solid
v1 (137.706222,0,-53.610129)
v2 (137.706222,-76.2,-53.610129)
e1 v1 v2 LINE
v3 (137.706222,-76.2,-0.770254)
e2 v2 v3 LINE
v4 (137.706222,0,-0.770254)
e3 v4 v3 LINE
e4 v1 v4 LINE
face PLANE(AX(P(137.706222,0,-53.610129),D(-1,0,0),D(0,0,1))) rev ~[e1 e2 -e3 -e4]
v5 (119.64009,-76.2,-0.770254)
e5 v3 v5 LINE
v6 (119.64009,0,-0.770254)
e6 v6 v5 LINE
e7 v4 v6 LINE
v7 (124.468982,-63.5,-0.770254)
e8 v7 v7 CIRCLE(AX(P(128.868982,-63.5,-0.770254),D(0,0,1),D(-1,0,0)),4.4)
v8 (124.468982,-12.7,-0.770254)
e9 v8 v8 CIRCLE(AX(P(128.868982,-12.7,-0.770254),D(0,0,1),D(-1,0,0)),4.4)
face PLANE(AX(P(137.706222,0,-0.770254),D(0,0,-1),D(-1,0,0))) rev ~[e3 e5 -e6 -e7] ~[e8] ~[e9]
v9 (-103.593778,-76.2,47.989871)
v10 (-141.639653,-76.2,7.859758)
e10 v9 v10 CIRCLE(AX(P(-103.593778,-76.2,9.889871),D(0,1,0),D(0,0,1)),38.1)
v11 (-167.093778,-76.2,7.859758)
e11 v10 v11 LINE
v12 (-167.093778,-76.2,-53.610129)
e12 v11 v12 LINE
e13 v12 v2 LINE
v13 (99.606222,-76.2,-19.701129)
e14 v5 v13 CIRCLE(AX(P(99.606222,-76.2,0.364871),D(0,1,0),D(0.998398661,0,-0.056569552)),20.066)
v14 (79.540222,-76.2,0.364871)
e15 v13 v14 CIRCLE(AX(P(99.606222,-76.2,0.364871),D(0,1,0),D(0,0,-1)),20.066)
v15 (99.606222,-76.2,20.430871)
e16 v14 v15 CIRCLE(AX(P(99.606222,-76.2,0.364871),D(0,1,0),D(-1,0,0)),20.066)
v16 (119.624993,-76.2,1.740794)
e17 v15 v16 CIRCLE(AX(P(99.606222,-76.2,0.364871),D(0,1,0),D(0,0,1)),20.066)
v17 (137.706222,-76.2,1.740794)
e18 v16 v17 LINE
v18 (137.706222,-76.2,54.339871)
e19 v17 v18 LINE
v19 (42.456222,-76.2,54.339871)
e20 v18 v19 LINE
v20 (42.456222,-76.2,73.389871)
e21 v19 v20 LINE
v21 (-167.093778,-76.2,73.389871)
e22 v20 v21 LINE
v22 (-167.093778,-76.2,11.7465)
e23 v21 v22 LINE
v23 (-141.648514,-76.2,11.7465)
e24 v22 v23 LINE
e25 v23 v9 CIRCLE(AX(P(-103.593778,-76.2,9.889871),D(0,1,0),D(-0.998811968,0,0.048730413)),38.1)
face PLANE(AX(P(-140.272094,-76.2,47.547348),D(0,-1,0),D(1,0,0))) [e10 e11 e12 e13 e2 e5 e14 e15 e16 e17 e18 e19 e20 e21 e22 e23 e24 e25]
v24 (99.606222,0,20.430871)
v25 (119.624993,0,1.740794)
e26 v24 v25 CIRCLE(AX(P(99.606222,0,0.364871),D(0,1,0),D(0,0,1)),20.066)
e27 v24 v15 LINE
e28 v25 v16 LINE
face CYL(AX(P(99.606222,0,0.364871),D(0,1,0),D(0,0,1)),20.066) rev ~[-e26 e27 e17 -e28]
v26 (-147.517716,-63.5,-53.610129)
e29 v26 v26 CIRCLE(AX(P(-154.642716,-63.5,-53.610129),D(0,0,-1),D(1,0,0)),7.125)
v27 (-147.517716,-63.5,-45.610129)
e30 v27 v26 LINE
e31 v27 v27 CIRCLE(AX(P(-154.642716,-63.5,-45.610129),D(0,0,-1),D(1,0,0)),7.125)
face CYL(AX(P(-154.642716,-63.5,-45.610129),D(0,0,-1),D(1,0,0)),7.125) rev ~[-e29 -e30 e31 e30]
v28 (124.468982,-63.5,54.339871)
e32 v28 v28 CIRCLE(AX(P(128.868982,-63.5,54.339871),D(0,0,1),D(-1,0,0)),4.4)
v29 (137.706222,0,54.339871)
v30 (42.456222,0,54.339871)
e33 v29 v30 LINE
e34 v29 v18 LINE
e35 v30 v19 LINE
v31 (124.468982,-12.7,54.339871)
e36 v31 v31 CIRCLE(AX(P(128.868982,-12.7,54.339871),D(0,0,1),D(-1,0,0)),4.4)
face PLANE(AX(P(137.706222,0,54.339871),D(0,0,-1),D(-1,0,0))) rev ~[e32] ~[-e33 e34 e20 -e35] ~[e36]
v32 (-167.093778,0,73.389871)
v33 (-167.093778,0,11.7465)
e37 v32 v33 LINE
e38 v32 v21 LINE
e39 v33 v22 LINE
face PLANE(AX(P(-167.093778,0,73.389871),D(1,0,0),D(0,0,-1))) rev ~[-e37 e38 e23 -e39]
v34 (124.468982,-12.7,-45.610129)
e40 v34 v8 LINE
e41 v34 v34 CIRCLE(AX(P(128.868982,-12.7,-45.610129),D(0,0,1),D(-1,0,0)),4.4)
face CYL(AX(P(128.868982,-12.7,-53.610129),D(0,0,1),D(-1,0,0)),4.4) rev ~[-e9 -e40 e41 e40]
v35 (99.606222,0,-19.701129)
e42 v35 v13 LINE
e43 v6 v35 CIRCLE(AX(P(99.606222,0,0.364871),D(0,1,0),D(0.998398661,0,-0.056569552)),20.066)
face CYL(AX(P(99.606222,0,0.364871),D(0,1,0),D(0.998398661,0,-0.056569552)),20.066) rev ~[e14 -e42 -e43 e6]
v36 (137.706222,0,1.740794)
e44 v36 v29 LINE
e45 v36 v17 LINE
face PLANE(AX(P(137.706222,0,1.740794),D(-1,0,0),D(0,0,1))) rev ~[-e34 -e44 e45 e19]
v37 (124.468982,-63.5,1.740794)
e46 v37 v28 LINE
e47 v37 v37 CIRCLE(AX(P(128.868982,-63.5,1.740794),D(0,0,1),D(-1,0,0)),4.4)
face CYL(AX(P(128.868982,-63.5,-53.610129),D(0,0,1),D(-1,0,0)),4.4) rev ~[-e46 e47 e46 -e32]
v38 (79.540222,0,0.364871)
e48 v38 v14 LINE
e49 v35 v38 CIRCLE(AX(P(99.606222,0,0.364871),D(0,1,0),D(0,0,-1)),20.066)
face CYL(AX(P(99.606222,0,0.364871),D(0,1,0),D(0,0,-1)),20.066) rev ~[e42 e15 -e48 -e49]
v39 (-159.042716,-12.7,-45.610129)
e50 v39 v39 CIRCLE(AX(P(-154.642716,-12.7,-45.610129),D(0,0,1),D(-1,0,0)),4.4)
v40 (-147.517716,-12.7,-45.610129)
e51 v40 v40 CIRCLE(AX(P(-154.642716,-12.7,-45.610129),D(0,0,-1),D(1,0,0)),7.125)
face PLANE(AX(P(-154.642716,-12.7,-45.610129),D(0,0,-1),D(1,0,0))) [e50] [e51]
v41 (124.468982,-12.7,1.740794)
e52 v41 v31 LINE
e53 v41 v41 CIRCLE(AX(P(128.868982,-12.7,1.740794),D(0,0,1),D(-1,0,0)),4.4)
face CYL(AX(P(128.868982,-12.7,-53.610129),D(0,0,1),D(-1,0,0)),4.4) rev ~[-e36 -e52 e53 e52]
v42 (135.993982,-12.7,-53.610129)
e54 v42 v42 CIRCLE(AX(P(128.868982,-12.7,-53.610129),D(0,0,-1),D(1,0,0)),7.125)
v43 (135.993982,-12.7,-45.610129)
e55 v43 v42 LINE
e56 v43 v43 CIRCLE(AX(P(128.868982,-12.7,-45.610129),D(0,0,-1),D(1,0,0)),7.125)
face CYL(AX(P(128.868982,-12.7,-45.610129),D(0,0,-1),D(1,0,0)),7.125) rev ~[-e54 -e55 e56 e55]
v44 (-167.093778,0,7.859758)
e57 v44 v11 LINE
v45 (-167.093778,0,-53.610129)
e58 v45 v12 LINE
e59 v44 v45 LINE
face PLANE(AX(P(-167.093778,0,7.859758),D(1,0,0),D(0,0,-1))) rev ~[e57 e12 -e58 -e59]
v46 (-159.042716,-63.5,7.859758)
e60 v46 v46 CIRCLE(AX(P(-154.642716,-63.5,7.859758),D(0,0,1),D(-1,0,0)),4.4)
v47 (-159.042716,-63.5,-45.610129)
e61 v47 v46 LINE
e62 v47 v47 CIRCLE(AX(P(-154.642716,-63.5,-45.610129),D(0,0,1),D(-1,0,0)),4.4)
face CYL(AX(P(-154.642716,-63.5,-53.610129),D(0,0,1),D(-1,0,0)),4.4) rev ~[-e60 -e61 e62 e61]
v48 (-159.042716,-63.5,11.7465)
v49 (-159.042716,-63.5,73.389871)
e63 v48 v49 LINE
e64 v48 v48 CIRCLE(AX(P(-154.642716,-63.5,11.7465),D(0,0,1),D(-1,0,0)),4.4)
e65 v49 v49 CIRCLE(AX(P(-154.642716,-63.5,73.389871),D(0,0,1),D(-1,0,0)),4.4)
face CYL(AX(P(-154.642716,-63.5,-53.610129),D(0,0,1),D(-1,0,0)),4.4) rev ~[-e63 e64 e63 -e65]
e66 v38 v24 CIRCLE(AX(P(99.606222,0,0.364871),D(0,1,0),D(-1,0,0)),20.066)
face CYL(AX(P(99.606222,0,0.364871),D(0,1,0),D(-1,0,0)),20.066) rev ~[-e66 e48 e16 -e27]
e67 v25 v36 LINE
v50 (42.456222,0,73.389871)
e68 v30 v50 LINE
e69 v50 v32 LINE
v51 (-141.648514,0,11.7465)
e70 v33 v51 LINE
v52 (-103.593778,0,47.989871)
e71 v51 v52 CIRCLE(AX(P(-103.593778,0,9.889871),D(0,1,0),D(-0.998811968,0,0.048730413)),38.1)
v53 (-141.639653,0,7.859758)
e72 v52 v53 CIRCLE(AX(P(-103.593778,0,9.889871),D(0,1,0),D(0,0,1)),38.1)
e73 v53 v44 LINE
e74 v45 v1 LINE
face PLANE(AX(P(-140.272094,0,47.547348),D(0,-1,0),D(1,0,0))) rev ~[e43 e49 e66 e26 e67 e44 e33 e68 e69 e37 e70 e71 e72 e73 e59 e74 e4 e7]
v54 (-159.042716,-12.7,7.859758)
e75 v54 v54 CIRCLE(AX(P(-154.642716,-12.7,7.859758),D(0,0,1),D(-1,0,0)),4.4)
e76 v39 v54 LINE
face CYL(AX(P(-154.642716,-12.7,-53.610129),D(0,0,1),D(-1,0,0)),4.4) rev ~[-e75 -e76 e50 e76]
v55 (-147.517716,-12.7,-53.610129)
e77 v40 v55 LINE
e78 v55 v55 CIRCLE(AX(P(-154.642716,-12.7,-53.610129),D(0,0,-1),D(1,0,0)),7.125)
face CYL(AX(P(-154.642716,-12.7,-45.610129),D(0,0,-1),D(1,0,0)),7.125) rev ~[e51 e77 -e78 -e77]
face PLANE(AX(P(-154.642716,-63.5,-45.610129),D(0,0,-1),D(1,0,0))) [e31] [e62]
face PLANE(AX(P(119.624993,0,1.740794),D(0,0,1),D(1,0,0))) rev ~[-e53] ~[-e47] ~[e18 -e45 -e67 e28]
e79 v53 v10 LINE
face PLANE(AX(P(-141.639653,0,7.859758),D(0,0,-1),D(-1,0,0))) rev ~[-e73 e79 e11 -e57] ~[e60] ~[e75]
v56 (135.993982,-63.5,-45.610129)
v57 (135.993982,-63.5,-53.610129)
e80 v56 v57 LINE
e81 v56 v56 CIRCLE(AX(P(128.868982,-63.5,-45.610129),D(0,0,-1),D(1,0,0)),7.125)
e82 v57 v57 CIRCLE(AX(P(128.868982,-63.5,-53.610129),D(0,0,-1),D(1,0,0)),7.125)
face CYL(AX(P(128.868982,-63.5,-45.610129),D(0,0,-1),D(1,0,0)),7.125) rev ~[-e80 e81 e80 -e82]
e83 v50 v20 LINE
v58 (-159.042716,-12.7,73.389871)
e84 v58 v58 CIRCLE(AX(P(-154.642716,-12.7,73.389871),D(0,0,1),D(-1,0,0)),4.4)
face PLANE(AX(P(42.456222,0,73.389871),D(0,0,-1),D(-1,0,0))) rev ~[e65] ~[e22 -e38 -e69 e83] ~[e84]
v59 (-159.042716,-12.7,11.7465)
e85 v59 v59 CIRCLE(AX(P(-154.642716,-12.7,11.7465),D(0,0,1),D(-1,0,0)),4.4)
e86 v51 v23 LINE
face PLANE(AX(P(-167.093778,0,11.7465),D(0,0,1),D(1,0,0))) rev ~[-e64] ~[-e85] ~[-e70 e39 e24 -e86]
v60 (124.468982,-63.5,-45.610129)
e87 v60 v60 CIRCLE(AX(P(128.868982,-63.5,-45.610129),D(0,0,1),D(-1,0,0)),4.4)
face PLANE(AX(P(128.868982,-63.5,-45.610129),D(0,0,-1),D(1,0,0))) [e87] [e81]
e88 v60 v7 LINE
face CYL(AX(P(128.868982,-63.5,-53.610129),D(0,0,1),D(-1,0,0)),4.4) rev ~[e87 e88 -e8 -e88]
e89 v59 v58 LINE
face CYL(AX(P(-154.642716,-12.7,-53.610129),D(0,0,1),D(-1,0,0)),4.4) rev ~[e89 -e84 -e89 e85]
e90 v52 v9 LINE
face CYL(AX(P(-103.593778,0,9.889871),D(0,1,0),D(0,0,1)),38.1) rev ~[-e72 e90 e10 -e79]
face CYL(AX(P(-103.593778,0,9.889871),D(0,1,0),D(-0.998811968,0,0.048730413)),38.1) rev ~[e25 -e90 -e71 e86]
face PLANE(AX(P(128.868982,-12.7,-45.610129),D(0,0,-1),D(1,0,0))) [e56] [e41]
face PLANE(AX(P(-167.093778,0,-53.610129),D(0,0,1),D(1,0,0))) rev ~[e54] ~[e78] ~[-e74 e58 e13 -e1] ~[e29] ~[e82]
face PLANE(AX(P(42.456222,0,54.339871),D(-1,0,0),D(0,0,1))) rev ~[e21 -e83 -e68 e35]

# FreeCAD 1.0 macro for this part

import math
import FreeCAD as App
import Part
import Sketcher
Q = App.Units.Quantity

doc = App.newDocument("Part")
body = doc.addObject("PartDesign::Body", "Body")

# Sketch on XZ plane
sketch1 = body.newObject("Sketcher::SketchObject", "Sketch")
sketch1.AttachmentSupport = (doc.getObject("XZ_Plane"), [""])
sketch1.MapMode = "FlatFace"
sketch1.addGeometry([
    Part.LineSegment(App.Vector(-167, 73, 0), App.Vector(-167, 12, 0)),  # 0
    Part.LineSegment(App.Vector(-167, 12, 0), App.Vector(-142, 12, 0)),  # 1
    Part.ArcOfCircle(Part.Circle(App.Vector(-104, 10, 0), App.Vector(0, 0, 1), 38), math.radians(90), math.radians(177)),  # 2
    Part.ArcOfCircle(Part.Circle(App.Vector(-104, 10, 0), App.Vector(0, 0, 1), 38), math.radians(-177), math.radians(90)),  # 3
    Part.LineSegment(App.Vector(-142, 8, 0), App.Vector(-167, 8, 0)),  # 4
    Part.LineSegment(App.Vector(-167, 8, 0), App.Vector(-167, -54, 0)),  # 5
    Part.LineSegment(App.Vector(-167, -54, 0), App.Vector(138, -54, 0)),  # 6
    Part.LineSegment(App.Vector(138, -54, 0), App.Vector(138, -1, 0)),  # 7
    Part.LineSegment(App.Vector(138, -1, 0), App.Vector(120, -1, 0)),  # 8
    Part.ArcOfCircle(Part.Circle(App.Vector(100, 0, 0), App.Vector(0, 0, 1), 20), math.radians(-90), math.radians(-3)),  # 9
    Part.ArcOfCircle(Part.Circle(App.Vector(100, 0, 0), App.Vector(0, 0, 1), 20), math.radians(180), math.radians(270)),  # 10
    Part.ArcOfCircle(Part.Circle(App.Vector(100, 0, 0), App.Vector(0, 0, 1), 20), math.radians(90), math.radians(180)),  # 11
    Part.ArcOfCircle(Part.Circle(App.Vector(100, 0, 0), App.Vector(0, 0, 1), 20), math.radians(4), math.radians(90)),  # 12
    Part.LineSegment(App.Vector(120, 2, 0), App.Vector(138, 2, 0)),  # 13
    Part.LineSegment(App.Vector(138, 2, 0), App.Vector(138, 54, 0)),  # 14
    Part.LineSegment(App.Vector(138, 54, 0), App.Vector(42, 54, 0)),  # 15
    Part.LineSegment(App.Vector(42, 54, 0), App.Vector(42, 73, 0)),  # 16
    Part.LineSegment(App.Vector(42, 73, 0), App.Vector(-167, 73, 0)),  # 17
], False)
sketch1.addConstraint([
    Sketcher.Constraint("Coincident", 0, 2, 1, 1),
    Sketcher.Constraint("Coincident", 1, 2, 2, 2),
    Sketcher.Constraint("Tangent", 2, 1, 3, 2),
    Sketcher.Constraint("Coincident", 3, 1, 4, 1),
    Sketcher.Constraint("Coincident", 4, 2, 5, 1),
    Sketcher.Constraint("Coincident", 5, 2, 6, 1),
    Sketcher.Constraint("Coincident", 6, 2, 7, 1),
    Sketcher.Constraint("Coincident", 7, 2, 8, 1),
    Sketcher.Constraint("Coincident", 8, 2, 9, 2),
    Sketcher.Constraint("Tangent", 9, 1, 10, 2),
    Sketcher.Constraint("Tangent", 10, 1, 11, 2),
    Sketcher.Constraint("Tangent", 11, 1, 12, 2),
    Sketcher.Constraint("Coincident", 12, 1, 13, 1),
    Sketcher.Constraint("Coincident", 13, 2, 14, 1),
    Sketcher.Constraint("Coincident", 14, 2, 15, 1),
    Sketcher.Constraint("Coincident", 15, 2, 16, 1),
    Sketcher.Constraint("Coincident", 16, 2, 17, 1),
    Sketcher.Constraint("Coincident", 17, 2, 0, 1),
    Sketcher.Constraint("Vertical", 0),
    Sketcher.Constraint("Horizontal", 1),
    Sketcher.Constraint("Horizontal", 4),
    Sketcher.Constraint("Vertical", 5),
    Sketcher.Constraint("Horizontal", 6),
    Sketcher.Constraint("Vertical", 7),
    Sketcher.Constraint("Horizontal", 8),
    Sketcher.Constraint("Horizontal", 13),
    Sketcher.Constraint("Vertical", 14),
    Sketcher.Constraint("Horizontal", 15),
    Sketcher.Constraint("Vertical", 16),
    Sketcher.Constraint("Horizontal", 17),
    Sketcher.Constraint("Coincident", 11, 3, 9, 3),
    Sketcher.Constraint("Equal", 2, 3),
    Sketcher.Constraint("Equal", 11, 12),
    Sketcher.Constraint("Horizontal", 12, 3, 10, 1),
    Sketcher.Constraint("Vertical", 3, 3, 2, 1),
    Sketcher.Constraint("Vertical", 0, 2, 4, 2),
    Sketcher.Constraint("Vertical", 12, 3, 9, 1),
    Sketcher.Constraint("Vertical", 9, 1, 11, 1),
    Sketcher.Constraint("Vertical", 7, 2, 13, 2),
    Sketcher.Constraint("Radius", 2, Q("1.5 in")),
    Sketcher.Constraint("DistanceX", 6, 1, 6, 2, Q("12 in")),
    Sketcher.Constraint("Radius", 9, Q("0.79 in")),
    Sketcher.Constraint("DistanceX", 3, 3, 9, 3, Q("8 in")),
    Sketcher.Constraint("DistanceY", 2, 1, 17, 2, Q("1 in")),
    Sketcher.Constraint("DistanceX", 15, 2, 15, 1, Q("3.75 in")),
    Sketcher.Constraint("DistanceY", 16, 1, 16, 2, Q("0.75 in")),
    Sketcher.Constraint("DistanceX", 0, 2, 2, 3, Q("2.5 in")),
    Sketcher.Constraint("DistanceY", 5, 2, 3, 3, Q("2.5 in")),
    Sketcher.Constraint("DistanceY", 9, 3, 3, 3, Q("0.375 in")),
    Sketcher.Constraint("DistanceX", 13, 1, 13, 2, 18.081229),
    Sketcher.Constraint("DistanceY", 0, 2, 0, 1, 61.643371),
    Sketcher.Constraint("DistanceY", -1, 1, 0, 2, 11.7465),
    Sketcher.Constraint("DistanceX", 4, 2, 4, 1, 25.454125),
    Sketcher.Constraint("DistanceX", 8, 2, 8, 1, 18.066132),
    Sketcher.Constraint("DistanceX", 2, 3, -1, 1, 103.593778),
])
pad1 = body.newObject("PartDesign::Pad", "Pad")
pad1.Profile = sketch1
pad1.Length = Q("3 in")

# Sketch on XY plane
sketch2 = body.newObject("Sketcher::SketchObject", "Sketch001")
sketch2.AttachmentSupport = (doc.getObject("XY_Plane"), [""])
sketch2.MapMode = "FlatFace"
sketch2.AttachmentOffset = App.Placement(App.Vector(0, 0, -53.610129), App.Rotation())
sketch2.addGeometry([
    Part.Circle(App.Vector(-154.6, -63.5, 0), App.Vector(0, 0, 1), 4.4),
    Part.Circle(App.Vector(128.9, -63.5, 0), App.Vector(0, 0, 1), 4.4),
    Part.Circle(App.Vector(128.9, -12.7, 0), App.Vector(0, 0, 1), 4.4),
    Part.Circle(App.Vector(-154.6, -12.7, 0), App.Vector(0, 0, 1), 4.4),
], False)
sketch2.addConstraint([
    Sketcher.Constraint("Equal", 0, 1),
    Sketcher.Constraint("Equal", 1, 2),
    Sketcher.Constraint("Equal", 2, 3),
    Sketcher.Constraint("Horizontal", 0, 3, 1, 3),
    Sketcher.Constraint("Horizontal", 2, 3, 3, 3),
    Sketcher.Constraint("Vertical", 1, 3, 2, 3),
    Sketcher.Constraint("Vertical", 0, 3, 3, 3),
    Sketcher.Constraint("DistanceY", 1, 3, 2, 3, Q("2 in")),
    Sketcher.Constraint("DistanceY", 0, 3, -1, 1, Q("2.5 in")),
    Sketcher.Constraint("Diameter", 0, 8.8),
    Sketcher.Constraint("DistanceX", 0, 3, 1, 3, 283.511698),
    Sketcher.Constraint("DistanceX", 0, 3, -1, 1, 154.642716),
])
doc.recompute()
hole = body.newObject("PartDesign::Hole", "Hole")
hole.Profile = sketch2
hole.ThreadType = "None"
hole.Diameter = 8.8
hole.DepthType = "ThroughAll"
hole.HoleCutType = "Counterbore"
hole.HoleCutDiameter = 14.25
hole.HoleCutDepth = 8
hole.Reversed = True

doc.recompute()
